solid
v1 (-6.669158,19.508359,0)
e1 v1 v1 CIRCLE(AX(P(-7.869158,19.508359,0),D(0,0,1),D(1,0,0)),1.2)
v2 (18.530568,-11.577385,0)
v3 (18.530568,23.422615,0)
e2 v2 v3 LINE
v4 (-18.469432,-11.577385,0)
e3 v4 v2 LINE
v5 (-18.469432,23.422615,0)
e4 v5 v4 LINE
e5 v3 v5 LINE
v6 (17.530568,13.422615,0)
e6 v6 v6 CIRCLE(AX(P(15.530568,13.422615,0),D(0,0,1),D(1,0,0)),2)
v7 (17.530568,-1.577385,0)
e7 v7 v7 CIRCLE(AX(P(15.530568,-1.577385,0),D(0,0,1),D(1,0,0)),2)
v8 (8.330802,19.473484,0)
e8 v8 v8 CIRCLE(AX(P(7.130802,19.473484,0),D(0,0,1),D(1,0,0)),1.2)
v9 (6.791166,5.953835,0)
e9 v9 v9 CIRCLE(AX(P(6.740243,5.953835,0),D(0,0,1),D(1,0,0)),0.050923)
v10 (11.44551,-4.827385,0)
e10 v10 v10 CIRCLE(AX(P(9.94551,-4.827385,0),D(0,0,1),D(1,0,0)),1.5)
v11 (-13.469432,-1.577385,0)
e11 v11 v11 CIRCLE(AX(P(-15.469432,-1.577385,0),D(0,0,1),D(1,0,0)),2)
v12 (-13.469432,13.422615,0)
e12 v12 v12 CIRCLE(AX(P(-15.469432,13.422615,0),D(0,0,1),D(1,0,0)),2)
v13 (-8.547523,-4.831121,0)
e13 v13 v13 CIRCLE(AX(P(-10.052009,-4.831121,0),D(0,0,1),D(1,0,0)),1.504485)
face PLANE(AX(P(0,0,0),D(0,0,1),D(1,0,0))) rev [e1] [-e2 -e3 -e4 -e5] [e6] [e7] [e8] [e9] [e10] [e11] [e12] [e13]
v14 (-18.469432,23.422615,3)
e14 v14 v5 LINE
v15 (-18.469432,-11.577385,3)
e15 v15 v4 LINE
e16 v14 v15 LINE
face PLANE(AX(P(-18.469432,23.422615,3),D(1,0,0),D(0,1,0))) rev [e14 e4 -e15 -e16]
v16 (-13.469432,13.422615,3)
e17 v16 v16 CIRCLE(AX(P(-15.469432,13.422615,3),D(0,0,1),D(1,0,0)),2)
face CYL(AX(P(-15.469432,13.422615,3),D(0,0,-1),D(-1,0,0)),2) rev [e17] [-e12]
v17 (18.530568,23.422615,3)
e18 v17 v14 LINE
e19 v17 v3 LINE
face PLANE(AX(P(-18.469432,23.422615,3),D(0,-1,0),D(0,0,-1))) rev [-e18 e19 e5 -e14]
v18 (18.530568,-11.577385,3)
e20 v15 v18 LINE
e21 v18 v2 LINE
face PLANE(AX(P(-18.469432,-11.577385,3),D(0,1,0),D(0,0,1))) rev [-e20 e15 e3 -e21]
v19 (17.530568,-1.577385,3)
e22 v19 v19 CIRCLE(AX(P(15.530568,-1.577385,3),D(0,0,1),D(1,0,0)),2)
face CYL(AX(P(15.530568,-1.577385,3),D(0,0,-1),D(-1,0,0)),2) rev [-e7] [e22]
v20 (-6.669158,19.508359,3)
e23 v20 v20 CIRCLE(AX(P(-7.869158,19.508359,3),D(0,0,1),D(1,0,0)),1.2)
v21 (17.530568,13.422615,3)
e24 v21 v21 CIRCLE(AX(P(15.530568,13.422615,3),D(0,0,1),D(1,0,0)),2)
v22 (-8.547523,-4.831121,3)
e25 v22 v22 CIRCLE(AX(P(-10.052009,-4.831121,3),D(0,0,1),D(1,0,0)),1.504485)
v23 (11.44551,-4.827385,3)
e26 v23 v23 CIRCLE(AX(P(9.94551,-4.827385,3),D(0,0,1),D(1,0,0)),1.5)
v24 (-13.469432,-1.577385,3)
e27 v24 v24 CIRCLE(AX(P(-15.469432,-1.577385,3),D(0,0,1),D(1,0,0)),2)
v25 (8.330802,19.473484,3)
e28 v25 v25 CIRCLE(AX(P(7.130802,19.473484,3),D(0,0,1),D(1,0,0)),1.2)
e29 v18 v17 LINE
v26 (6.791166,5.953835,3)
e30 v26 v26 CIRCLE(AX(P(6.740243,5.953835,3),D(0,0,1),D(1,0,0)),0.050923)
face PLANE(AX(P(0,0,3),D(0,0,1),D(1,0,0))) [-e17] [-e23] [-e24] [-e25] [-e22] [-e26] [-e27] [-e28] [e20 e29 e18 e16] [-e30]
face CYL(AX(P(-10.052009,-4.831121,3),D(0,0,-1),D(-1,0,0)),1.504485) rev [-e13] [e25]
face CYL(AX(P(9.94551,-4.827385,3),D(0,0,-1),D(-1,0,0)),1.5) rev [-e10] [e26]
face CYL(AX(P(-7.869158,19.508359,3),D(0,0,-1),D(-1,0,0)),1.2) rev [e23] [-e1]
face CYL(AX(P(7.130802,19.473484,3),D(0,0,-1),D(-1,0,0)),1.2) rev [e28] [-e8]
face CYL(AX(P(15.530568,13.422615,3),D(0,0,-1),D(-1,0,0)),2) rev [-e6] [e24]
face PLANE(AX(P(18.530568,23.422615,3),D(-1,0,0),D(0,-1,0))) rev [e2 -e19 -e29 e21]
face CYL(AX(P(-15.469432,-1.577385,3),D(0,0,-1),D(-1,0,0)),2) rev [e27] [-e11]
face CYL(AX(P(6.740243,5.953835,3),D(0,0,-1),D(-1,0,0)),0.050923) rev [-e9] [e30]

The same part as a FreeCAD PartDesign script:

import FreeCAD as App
import Part
import Sketcher

V = App.Vector

doc = App.newDocument("Part")
body = doc.addObject("PartDesign::Body", "Body")

sketch1 = doc.addObject("Sketcher::SketchObject", "Sketch")
body.addObject(sketch1)
sketch1.AttachmentSupport = (doc.XY_Plane, [""])
sketch1.MapMode = "FlatFace"
sketch1.addGeometry([
    Part.LineSegment(V(-18.47, 23.42, 0), V(-18.47, -11.58, 0)),
    Part.LineSegment(V(-18.47, -11.58, 0), V(18.53, -11.58, 0)),
    Part.LineSegment(V(18.53, -11.58, 0), V(18.53, 23.42, 0)),
    Part.LineSegment(V(18.53, 23.42, 0), V(-18.47, 23.42, 0)),
    Part.Circle(V(-10.05, -4.83, 0), V(0, 0, 1), 1.5),
    Part.Circle(V(-15.47, -1.58, 0), V(0, 0, 1), 2),
    Part.Circle(V(9.95, -4.83, 0), V(0, 0, 1), 1.5),
    Part.Circle(V(15.53, -1.58, 0), V(0, 0, 1), 2),
    Part.Circle(V(6.74, 5.95, 0), V(0, 0, 1), 0.05),
    Part.Circle(V(-15.47, 13.42, 0), V(0, 0, 1), 2),
    Part.Circle(V(-7.87, 19.51, 0), V(0, 0, 1), 1.2),
    Part.Circle(V(15.53, 13.42, 0), V(0, 0, 1), 2),
    Part.Circle(V(7.13, 19.47, 0), V(0, 0, 1), 1.2),
], False)
sketch1.addConstraint([
    Sketcher.Constraint("Coincident", 0, 2, 1, 1),
    Sketcher.Constraint("Coincident", 1, 2, 2, 1),
    Sketcher.Constraint("Coincident", 2, 2, 3, 1),
    Sketcher.Constraint("Coincident", 3, 2, 0, 1),
    Sketcher.Constraint("Vertical", 0),
    Sketcher.Constraint("Horizontal", 1),
    Sketcher.Constraint("Vertical", 2),
    Sketcher.Constraint("Horizontal", 3),
    Sketcher.Constraint("Equal", 5, 7),
    Sketcher.Constraint("Equal", 7, 9),
    Sketcher.Constraint("Equal", 9, 11),
    Sketcher.Constraint("Equal", 10, 12),
    Sketcher.Constraint("Horizontal", 5, 3, 7, 3),
    Sketcher.Constraint("Horizontal", 9, 3, 11, 3),
    Sketcher.Constraint("Vertical", 5, 3, 9, 3),
    Sketcher.Constraint("Vertical", 7, 3, 11, 3),
    Sketcher.Constraint("Diameter", 5, 4.0),
    Sketcher.Constraint("Diameter", 6, 3.0),
    Sketcher.Constraint("Diameter", 10, 2.4),
    Sketcher.Constraint("DistanceX", 1, 1, 1, 2, 37.0),
    Sketcher.Constraint("DistanceY", 0, 2, 0, 1, 35.0),
    Sketcher.Constraint("DistanceX", 5, 3, 7, 3, 31.0),
    Sketcher.Constraint("DistanceY", 5, 3, 9, 3, 15.0),
    Sketcher.Constraint("DistanceX", 0, 2, 5, 3, 3.0),
    Sketcher.Constraint("DistanceY", 0, 2, 5, 3, 10.0),
    Sketcher.Constraint("Diameter", 4, 3.008971),
    Sketcher.Constraint("DistanceY", 6, 3, 5, 3, 3.25),
    Sketcher.Constraint("Diameter", 8, 0.101847),
    Sketcher.Constraint("DistanceX", -1, 1, 12, 3, 7.130802),
    Sketcher.Constraint("DistanceX", 10, 3, 8, 3, 14.609401),
    Sketcher.Constraint("DistanceX", 4, 3, -1, 1, 10.052009),
    Sketcher.Constraint("DistanceY", 4, 3, -1, 1, 4.831121),
    Sketcher.Constraint("DistanceX", -1, 1, 6, 3, 9.94551),
    Sketcher.Constraint("DistanceY", -1, 1, 10, 3, 19.508359),
    Sketcher.Constraint("DistanceY", 6, 3, 8, 3, 10.78122),
    Sketcher.Constraint("DistanceX", 4, 3, 8, 3, 16.792252),
    Sketcher.Constraint("DistanceY", 11, 3, 12, 3, 6.050869),
    Sketcher.Constraint("DistanceX", 5, 3, -1, 1, 15.469432),
    Sketcher.Constraint("DistanceY", 5, 3, -1, 1, 1.577385),
])
pad1 = doc.addObject("PartDesign::Pad", "Pad")
body.addObject(pad1)
pad1.Profile = sketch1
pad1.Length = 3

doc.recompute()
